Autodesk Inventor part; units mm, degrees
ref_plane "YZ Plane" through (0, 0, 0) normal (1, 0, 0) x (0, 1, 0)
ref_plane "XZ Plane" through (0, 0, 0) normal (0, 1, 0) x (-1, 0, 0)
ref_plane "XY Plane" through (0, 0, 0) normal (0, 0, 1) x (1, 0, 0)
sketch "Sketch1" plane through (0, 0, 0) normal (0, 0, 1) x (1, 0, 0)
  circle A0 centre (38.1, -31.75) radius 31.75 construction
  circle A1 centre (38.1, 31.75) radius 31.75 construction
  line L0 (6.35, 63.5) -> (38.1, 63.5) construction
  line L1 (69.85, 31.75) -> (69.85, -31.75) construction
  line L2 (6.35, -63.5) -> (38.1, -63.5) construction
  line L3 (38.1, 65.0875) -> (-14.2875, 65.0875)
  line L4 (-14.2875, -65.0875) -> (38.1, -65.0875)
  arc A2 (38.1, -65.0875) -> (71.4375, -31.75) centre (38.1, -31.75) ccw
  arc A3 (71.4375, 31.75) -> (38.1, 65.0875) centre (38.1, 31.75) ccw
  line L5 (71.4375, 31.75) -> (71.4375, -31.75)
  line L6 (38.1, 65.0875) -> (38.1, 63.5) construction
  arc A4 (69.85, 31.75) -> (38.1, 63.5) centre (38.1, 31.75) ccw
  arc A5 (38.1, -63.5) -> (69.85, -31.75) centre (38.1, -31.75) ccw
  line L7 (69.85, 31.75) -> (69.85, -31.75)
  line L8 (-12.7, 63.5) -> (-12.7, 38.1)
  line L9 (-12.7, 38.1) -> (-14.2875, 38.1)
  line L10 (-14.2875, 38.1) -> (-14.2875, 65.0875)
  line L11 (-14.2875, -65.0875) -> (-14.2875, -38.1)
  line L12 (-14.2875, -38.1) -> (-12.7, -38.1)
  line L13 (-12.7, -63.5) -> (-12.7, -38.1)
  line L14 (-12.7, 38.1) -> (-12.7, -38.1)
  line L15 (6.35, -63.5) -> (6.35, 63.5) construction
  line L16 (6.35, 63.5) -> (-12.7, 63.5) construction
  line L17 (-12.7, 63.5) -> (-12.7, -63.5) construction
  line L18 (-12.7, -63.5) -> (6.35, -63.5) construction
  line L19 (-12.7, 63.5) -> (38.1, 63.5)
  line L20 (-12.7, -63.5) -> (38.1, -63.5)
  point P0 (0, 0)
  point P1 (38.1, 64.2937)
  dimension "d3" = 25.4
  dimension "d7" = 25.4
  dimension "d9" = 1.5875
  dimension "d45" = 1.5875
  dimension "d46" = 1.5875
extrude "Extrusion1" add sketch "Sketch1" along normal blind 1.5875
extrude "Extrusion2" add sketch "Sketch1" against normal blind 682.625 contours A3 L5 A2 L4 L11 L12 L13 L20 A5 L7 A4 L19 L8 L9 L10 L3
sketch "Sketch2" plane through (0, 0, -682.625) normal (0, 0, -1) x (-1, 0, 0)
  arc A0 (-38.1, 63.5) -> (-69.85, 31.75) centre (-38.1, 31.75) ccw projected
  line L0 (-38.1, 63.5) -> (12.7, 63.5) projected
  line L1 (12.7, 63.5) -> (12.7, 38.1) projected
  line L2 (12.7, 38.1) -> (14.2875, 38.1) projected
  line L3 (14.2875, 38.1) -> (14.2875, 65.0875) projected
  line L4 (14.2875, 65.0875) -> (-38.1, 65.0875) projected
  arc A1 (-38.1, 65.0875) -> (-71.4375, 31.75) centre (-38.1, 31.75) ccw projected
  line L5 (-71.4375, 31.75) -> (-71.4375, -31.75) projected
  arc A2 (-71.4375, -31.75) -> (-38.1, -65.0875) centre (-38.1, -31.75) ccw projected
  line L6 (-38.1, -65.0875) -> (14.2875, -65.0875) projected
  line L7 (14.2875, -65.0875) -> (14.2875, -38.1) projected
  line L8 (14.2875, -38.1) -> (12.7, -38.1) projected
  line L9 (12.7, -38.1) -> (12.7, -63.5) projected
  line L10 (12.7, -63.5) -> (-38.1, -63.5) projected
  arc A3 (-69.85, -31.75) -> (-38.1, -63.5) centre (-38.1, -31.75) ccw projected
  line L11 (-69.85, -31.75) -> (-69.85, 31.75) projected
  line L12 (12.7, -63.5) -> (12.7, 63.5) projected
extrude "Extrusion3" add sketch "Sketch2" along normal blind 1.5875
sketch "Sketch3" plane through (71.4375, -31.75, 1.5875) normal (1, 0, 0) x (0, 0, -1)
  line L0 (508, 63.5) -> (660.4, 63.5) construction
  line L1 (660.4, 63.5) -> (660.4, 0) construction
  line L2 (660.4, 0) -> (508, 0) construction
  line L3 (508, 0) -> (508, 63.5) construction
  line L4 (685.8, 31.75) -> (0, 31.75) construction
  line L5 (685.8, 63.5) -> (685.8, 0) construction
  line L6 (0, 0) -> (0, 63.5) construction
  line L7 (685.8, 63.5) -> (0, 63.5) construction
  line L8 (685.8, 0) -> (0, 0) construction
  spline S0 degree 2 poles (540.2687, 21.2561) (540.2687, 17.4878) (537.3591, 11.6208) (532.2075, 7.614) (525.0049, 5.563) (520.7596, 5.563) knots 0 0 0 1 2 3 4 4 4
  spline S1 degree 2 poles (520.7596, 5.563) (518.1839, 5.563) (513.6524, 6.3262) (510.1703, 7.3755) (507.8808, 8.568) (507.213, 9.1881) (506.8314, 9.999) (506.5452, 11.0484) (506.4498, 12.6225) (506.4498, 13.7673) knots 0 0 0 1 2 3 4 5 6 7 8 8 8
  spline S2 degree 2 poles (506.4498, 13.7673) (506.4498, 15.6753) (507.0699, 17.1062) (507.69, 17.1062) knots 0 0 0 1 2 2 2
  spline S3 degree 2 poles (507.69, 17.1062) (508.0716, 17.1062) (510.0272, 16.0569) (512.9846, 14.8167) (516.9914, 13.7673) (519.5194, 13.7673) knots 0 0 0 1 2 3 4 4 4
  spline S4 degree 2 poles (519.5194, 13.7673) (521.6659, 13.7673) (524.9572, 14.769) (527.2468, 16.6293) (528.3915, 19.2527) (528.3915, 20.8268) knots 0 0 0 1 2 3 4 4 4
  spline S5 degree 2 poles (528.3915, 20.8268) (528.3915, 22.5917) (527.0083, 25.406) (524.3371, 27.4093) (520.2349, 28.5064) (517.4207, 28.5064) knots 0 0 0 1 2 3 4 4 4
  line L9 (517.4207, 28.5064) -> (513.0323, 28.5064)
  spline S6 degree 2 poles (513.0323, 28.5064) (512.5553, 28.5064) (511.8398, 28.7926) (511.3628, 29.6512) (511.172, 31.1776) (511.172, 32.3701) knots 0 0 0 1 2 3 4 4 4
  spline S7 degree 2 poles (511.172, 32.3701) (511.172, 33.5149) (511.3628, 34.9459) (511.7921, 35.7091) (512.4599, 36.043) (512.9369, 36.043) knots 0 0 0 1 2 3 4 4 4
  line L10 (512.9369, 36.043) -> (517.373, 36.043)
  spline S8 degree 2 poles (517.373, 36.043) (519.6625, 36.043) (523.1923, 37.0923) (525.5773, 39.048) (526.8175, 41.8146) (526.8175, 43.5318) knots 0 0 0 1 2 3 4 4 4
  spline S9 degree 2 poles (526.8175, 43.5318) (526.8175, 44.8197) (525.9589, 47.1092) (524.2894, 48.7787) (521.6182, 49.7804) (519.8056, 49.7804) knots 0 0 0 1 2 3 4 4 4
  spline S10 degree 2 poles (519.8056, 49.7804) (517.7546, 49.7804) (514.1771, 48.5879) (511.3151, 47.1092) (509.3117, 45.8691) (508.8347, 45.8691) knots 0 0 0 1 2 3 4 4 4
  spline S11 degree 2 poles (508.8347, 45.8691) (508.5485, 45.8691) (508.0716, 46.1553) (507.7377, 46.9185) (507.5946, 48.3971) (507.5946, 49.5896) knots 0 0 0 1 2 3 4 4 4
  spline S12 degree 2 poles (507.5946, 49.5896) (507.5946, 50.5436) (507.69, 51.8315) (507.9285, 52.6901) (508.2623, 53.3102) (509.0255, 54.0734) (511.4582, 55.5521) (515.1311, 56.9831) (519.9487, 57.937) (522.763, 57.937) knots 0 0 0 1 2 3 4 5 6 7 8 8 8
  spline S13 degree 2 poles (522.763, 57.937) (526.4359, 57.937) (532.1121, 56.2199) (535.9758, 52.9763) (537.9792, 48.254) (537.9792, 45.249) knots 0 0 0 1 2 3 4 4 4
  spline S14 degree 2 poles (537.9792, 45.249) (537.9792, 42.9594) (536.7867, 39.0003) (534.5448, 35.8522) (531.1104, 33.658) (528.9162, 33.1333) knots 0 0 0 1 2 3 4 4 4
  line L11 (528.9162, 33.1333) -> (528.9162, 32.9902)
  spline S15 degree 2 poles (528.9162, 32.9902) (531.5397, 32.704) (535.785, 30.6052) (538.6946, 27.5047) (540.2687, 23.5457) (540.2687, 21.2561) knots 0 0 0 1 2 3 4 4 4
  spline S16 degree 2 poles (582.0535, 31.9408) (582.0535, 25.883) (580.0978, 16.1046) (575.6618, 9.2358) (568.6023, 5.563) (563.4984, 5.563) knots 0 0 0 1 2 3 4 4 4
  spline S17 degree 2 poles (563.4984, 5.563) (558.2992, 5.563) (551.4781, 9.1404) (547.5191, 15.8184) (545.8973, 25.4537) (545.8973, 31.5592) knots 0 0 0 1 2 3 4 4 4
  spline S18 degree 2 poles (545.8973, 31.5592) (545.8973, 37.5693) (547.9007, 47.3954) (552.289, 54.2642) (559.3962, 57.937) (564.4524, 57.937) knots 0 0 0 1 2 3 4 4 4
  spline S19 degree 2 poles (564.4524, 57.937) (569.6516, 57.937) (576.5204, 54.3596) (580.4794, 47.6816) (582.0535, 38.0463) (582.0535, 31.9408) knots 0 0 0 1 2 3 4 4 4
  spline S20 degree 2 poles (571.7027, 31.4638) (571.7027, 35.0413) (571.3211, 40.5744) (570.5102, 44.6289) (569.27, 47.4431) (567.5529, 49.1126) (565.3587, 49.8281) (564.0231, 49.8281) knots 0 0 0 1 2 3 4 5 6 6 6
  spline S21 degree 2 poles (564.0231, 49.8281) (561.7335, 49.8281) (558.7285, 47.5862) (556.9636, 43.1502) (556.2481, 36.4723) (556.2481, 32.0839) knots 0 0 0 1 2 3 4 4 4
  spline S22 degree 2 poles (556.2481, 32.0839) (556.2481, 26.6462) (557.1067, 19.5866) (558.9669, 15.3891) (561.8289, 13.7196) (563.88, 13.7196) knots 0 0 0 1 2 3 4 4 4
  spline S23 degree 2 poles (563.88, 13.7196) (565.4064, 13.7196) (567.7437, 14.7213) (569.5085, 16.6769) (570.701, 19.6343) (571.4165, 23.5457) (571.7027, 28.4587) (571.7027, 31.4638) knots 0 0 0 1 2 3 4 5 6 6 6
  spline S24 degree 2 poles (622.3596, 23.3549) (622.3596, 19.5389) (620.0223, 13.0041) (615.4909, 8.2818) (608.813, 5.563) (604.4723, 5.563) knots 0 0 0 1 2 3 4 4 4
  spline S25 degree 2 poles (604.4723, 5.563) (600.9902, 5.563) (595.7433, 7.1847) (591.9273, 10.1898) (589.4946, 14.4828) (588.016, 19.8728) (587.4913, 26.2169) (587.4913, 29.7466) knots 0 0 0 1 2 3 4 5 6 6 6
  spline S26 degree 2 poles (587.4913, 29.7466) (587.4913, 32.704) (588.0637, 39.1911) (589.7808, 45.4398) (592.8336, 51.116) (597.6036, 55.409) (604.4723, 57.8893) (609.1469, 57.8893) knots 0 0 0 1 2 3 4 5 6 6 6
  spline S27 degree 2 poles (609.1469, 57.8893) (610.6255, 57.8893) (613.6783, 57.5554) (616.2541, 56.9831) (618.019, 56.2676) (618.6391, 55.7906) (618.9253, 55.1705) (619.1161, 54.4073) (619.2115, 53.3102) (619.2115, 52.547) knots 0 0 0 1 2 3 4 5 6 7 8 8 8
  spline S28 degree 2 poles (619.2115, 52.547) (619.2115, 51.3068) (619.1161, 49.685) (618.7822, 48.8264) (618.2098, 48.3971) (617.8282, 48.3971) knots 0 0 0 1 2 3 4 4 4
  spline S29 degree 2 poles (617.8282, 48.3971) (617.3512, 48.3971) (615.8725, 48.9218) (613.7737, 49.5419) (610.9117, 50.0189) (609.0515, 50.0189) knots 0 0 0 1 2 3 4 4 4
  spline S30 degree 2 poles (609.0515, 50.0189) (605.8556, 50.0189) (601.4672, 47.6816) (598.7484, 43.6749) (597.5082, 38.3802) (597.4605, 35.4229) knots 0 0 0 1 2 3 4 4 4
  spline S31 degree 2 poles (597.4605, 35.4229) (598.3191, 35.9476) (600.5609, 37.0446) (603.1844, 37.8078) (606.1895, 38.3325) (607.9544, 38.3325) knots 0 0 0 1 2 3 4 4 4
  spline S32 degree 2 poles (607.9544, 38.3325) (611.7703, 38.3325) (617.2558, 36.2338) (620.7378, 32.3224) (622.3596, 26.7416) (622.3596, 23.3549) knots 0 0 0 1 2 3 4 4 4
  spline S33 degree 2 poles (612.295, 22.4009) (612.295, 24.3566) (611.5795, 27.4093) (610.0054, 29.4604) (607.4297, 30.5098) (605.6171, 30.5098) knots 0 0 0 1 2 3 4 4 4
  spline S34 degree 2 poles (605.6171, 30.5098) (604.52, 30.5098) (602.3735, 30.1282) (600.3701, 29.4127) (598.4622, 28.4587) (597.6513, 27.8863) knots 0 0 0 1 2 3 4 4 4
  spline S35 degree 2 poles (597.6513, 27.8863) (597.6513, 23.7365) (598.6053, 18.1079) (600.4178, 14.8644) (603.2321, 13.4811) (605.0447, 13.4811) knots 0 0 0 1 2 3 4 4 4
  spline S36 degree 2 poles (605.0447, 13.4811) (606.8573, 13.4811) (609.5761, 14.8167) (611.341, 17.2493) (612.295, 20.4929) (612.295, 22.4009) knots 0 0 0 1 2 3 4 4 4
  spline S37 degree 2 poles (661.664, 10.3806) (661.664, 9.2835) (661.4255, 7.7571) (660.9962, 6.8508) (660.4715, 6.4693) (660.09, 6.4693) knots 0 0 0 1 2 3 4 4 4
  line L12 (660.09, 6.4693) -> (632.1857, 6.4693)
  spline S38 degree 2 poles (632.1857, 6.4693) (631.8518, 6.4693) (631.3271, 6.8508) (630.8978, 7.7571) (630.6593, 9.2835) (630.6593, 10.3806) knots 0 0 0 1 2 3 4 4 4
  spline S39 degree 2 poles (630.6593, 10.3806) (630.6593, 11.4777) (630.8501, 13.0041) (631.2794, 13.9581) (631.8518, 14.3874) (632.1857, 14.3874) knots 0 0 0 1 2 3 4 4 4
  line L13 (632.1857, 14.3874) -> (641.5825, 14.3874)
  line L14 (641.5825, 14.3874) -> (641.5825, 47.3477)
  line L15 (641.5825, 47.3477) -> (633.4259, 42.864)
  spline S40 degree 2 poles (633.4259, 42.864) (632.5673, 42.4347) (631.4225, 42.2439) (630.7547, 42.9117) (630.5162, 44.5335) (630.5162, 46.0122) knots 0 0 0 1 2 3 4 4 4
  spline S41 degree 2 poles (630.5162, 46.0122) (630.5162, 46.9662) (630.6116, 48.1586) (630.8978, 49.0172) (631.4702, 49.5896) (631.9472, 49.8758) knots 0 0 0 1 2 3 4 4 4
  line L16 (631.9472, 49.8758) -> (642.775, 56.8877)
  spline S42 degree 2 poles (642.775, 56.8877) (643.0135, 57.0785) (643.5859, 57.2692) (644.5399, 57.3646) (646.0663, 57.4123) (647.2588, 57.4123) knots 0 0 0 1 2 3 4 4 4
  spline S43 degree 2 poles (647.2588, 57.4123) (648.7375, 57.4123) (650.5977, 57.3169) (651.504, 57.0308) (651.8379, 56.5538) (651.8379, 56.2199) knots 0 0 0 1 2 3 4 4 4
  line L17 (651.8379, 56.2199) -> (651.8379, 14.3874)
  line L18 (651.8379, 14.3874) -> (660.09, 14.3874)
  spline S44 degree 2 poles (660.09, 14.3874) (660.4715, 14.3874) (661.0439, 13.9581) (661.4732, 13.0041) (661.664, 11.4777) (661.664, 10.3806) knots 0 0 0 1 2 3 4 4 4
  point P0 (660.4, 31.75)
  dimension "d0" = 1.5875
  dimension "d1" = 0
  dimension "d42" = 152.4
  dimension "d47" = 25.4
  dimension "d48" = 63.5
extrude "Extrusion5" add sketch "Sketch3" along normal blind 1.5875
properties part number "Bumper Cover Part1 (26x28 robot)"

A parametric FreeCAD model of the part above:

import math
import FreeCAD as App
import Part
import Sketcher
from FreeCAD import Vector
Q = App.Units.Quantity

doc = App.newDocument("Part")
body = doc.addObject("PartDesign::Body", "Body")

# Sketch on XY plane
sketch1 = body.newObject("Sketcher::SketchObject", "Sketch")
sketch1.AttachmentSupport = (doc.getObject("XY_Plane"), [""])
sketch1.MapMode = "FlatFace"
sketch1.addGeometry(Part.ArcOfCircle(Part.Circle(Vector(38.1, 31.75, 0), Vector(0, 0, 1), 33.3375), math.radians(0), math.radians(90)), False)
sketch1.addGeometry(Part.LineSegment(Vector(38.1, 65.0875, 0), Vector(-14.2875, 65.0875, 0)), False)
sketch1.addGeometry(Part.LineSegment(Vector(-14.2875, 65.0875, 0), Vector(-14.2875, 38.1, 0)), False)
sketch1.addGeometry(Part.LineSegment(Vector(-14.2875, 38.1, 0), Vector(-12.7, 38.1, 0)), False)
sketch1.addGeometry(Part.LineSegment(Vector(-12.7, 38.1, 0), Vector(-12.7, -38.1, 0)), False)
sketch1.addGeometry(Part.LineSegment(Vector(-12.7, -38.1, 0), Vector(-14.2875, -38.1, 0)), False)
sketch1.addGeometry(Part.LineSegment(Vector(-14.2875, -38.1, 0), Vector(-14.2875, -65.0875, 0)), False)
sketch1.addGeometry(Part.LineSegment(Vector(-14.2875, -65.0875, 0), Vector(38.1, -65.0875, 0)), False)
sketch1.addGeometry(Part.ArcOfCircle(Part.Circle(Vector(38.1, -31.75, 0), Vector(0, 0, 1), 33.3375), math.radians(-90), math.radians(0)), False)
sketch1.addGeometry(Part.LineSegment(Vector(71.4375, -31.75, 0), Vector(71.4375, 31.75, 0)), False)
sketch1.addConstraint(Sketcher.Constraint("Tangent", 0, 2, 1, 1))
sketch1.addConstraint(Sketcher.Constraint("Coincident", 1, 2, 2, 1))
sketch1.addConstraint(Sketcher.Constraint("Coincident", 2, 2, 3, 1))
sketch1.addConstraint(Sketcher.Constraint("Coincident", 3, 2, 4, 1))
sketch1.addConstraint(Sketcher.Constraint("Coincident", 4, 2, 5, 1))
sketch1.addConstraint(Sketcher.Constraint("Coincident", 5, 2, 6, 1))
sketch1.addConstraint(Sketcher.Constraint("Coincident", 6, 2, 7, 1))
sketch1.addConstraint(Sketcher.Constraint("Tangent", 7, 2, 8, 1))
sketch1.addConstraint(Sketcher.Constraint("Tangent", 8, 2, 9, 1))
sketch1.addConstraint(Sketcher.Constraint("Tangent", 9, 2, 0, 1))
sketch1.addConstraint(Sketcher.Constraint("Horizontal", 1))
sketch1.addConstraint(Sketcher.Constraint("Vertical", 2))
sketch1.addConstraint(Sketcher.Constraint("Horizontal", 3))
sketch1.addConstraint(Sketcher.Constraint("Vertical", 4))
sketch1.addConstraint(Sketcher.Constraint("Horizontal", 5))
sketch1.addConstraint(Sketcher.Constraint("Vertical", 6))
sketch1.addConstraint(Sketcher.Constraint("Horizontal", 7))
sketch1.addConstraint(Sketcher.Constraint("Vertical", 9))
sketch1.addConstraint(Sketcher.Constraint("Equal", 0, 8))
sketch1.addConstraint(Sketcher.Constraint("Symmetric", 2, 2, 5, 2, -1))
sketch1.addConstraint(Sketcher.Constraint("Equal", 2, 6))
sketch1.addConstraint(Sketcher.Constraint("DistanceX", 3, 1, 3, 2, Q("0.0625 in")))
sketch1.addConstraint(Sketcher.Constraint("DistanceY", 4, 2, 4, 1, Q("3 in")))
sketch1.addConstraint(Sketcher.Constraint("DistanceY", 9, 1, 9, 2, Q("2.5 in")))
sketch1.addConstraint(Sketcher.Constraint("Radius", 0, Q("1.3125 in")))
sketch1.addConstraint(Sketcher.Constraint("DistanceX", 3, 2, 0, 3, Q("2 in")))
sketch1.addConstraint(Sketcher.Constraint("DistanceX", -1, 1, 0, 3, Q("1.5 in")))
pad1 = body.newObject("PartDesign::Pad", "Pad")
pad1.Profile = sketch1
pad1.Length = Q("0.0625 in")

# Sketch on XY plane
sketch2 = body.newObject("Sketcher::SketchObject", "Sketch001")
sketch2.AttachmentSupport = (doc.getObject("XY_Plane"), [""])
sketch2.MapMode = "FlatFace"
sketch2.addGeometry(Part.ArcOfCircle(Part.Circle(Vector(38.1, 31.75, 0), Vector(0, 0, 1), 33.3375), math.radians(0), math.radians(90)), False)
sketch2.addGeometry(Part.LineSegment(Vector(38.1, 65.0875, 0), Vector(-14.2875, 65.0875, 0)), False)
sketch2.addGeometry(Part.LineSegment(Vector(-14.2875, 65.0875, 0), Vector(-14.2875, 38.1, 0)), False)
sketch2.addGeometry(Part.LineSegment(Vector(-14.2875, 38.1, 0), Vector(-12.7, 38.1, 0)), False)
sketch2.addGeometry(Part.LineSegment(Vector(-12.7, 38.1, 0), Vector(-12.7, 63.5, 0)), False)
sketch2.addGeometry(Part.LineSegment(Vector(-12.7, 63.5, 0), Vector(38.1, 63.5, 0)), False)
sketch2.addGeometry(Part.ArcOfCircle(Part.Circle(Vector(38.1, 31.75, 0), Vector(0, 0, 1), 31.75), math.radians(0), math.radians(90)), False)
sketch2.addGeometry(Part.LineSegment(Vector(69.85, 31.75, 0), Vector(69.85, -31.75, 0)), False)
sketch2.addGeometry(Part.ArcOfCircle(Part.Circle(Vector(38.1, -31.75, 0), Vector(0, 0, 1), 31.75), math.radians(-90), math.radians(0)), False)
sketch2.addGeometry(Part.LineSegment(Vector(38.1, -63.5, 0), Vector(-12.7, -63.5, 0)), False)
sketch2.addGeometry(Part.LineSegment(Vector(-12.7, -63.5, 0), Vector(-12.7, -38.1, 0)), False)
sketch2.addGeometry(Part.LineSegment(Vector(-12.7, -38.1, 0), Vector(-14.2875, -38.1, 0)), False)
sketch2.addGeometry(Part.LineSegment(Vector(-14.2875, -38.1, 0), Vector(-14.2875, -65.0875, 0)), False)
sketch2.addGeometry(Part.LineSegment(Vector(-14.2875, -65.0875, 0), Vector(38.1, -65.0875, 0)), False)
sketch2.addGeometry(Part.ArcOfCircle(Part.Circle(Vector(38.1, -31.75, 0), Vector(0, 0, 1), 33.3375), math.radians(-90), math.radians(0)), False)
sketch2.addGeometry(Part.LineSegment(Vector(71.4375, -31.75, 0), Vector(71.4375, 31.75, 0)), False)
sketch2.addConstraint(Sketcher.Constraint("Tangent", 0, 2, 1, 1))
sketch2.addConstraint(Sketcher.Constraint("Coincident", 1, 2, 2, 1))
sketch2.addConstraint(Sketcher.Constraint("Coincident", 2, 2, 3, 1))
sketch2.addConstraint(Sketcher.Constraint("Coincident", 3, 2, 4, 1))
sketch2.addConstraint(Sketcher.Constraint("Coincident", 4, 2, 5, 1))
sketch2.addConstraint(Sketcher.Constraint("Tangent", 5, 2, 6, 2))
sketch2.addConstraint(Sketcher.Constraint("Tangent", 6, 1, 7, 1))
sketch2.addConstraint(Sketcher.Constraint("Tangent", 7, 2, 8, 2))
sketch2.addConstraint(Sketcher.Constraint("Tangent", 8, 1, 9, 1))
sketch2.addConstraint(Sketcher.Constraint("Coincident", 9, 2, 10, 1))
sketch2.addConstraint(Sketcher.Constraint("Coincident", 10, 2, 11, 1))
sketch2.addConstraint(Sketcher.Constraint("Coincident", 11, 2, 12, 1))
sketch2.addConstraint(Sketcher.Constraint("Coincident", 12, 2, 13, 1))
sketch2.addConstraint(Sketcher.Constraint("Tangent", 13, 2, 14, 1))
sketch2.addConstraint(Sketcher.Constraint("Tangent", 14, 2, 15, 1))
sketch2.addConstraint(Sketcher.Constraint("Tangent", 15, 2, 0, 1))
sketch2.addConstraint(Sketcher.Constraint("Horizontal", 1))
sketch2.addConstraint(Sketcher.Constraint("Vertical", 2))
sketch2.addConstraint(Sketcher.Constraint("Horizontal", 3))
sketch2.addConstraint(Sketcher.Constraint("Vertical", 4))
sketch2.addConstraint(Sketcher.Constraint("Horizontal", 5))
sketch2.addConstraint(Sketcher.Constraint("Vertical", 7))
sketch2.addConstraint(Sketcher.Constraint("Horizontal", 9))
sketch2.addConstraint(Sketcher.Constraint("Vertical", 10))
sketch2.addConstraint(Sketcher.Constraint("Horizontal", 11))
sketch2.addConstraint(Sketcher.Constraint("Vertical", 12))
sketch2.addConstraint(Sketcher.Constraint("Horizontal", 13))
sketch2.addConstraint(Sketcher.Constraint("Vertical", 15))
sketch2.addConstraint(Sketcher.Constraint("Coincident", 6, 3, 0, 3))
sketch2.addConstraint(Sketcher.Constraint("Coincident", 14, 3, 8, 3))
sketch2.addConstraint(Sketcher.Constraint("Equal", 6, 8))
sketch2.addConstraint(Sketcher.Constraint("Symmetric", 4, 2, 9, 2, -1))
sketch2.addConstraint(Sketcher.Constraint("Symmetric", 2, 2, 11, 2, -1))
sketch2.addConstraint(Sketcher.Constraint("DistanceY", 4, 1, 4, 2, Q("1 in")))
sketch2.addConstraint(Sketcher.Constraint("DistanceX", 3, 1, 3, 2, Q("0.0625 in")))
sketch2.addConstraint(Sketcher.Constraint("DistanceX", 5, 1, 5, 2, Q("2 in")))
sketch2.addConstraint(Sketcher.Constraint("Radius", 6, Q("1.25 in")))
sketch2.addConstraint(Sketcher.Constraint("DistanceY", 7, 2, 7, 1, Q("2.5 in")))
sketch2.addConstraint(Sketcher.Constraint("Radius", 0, Q("1.3125 in")))
sketch2.addConstraint(Sketcher.Constraint("DistanceX", -1, 1, 0, 3, Q("1.5 in")))
pad2 = body.newObject("PartDesign::Pad", "Pad001")
pad2.Profile = sketch2
pad2.Length = Q("26.875 in")
pad2.Reversed = True

# Sketch on XY plane
sketch3 = body.newObject("Sketcher::SketchObject", "Sketch002")
sketch3.AttachmentSupport = (doc.getObject("XY_Plane"), [""])
sketch3.MapMode = "FlatFace"
sketch3.AttachmentOffset = App.Placement(Vector(0, 0, -26.875 * 25.4), App.Rotation())
sketch3.addGeometry(Part.LineSegment(Vector(-12.7, -38.1, 0), Vector(-12.7, 38.1, 0)), False)
sketch3.addGeometry(Part.LineSegment(Vector(-12.7, 38.1, 0), Vector(-14.2875, 38.1, 0)), False)
sketch3.addGeometry(Part.LineSegment(Vector(-14.2875, 38.1, 0), Vector(-14.2875, 65.0875, 0)), False)
sketch3.addGeometry(Part.LineSegment(Vector(-14.2875, 65.0875, 0), Vector(38.1, 65.0875, 0)), False)
sketch3.addGeometry(Part.ArcOfCircle(Part.Circle(Vector(38.1, 31.75, 0), Vector(0, 0, 1), 33.3375), math.radians(0), math.radians(90)), False)
sketch3.addGeometry(Part.LineSegment(Vector(71.4375, 31.75, 0), Vector(71.4375, -31.75, 0)), False)
sketch3.addGeometry(Part.ArcOfCircle(Part.Circle(Vector(38.1, -31.75, 0), Vector(0, 0, 1), 33.3375), math.radians(-90), math.radians(0)), False)
sketch3.addGeometry(Part.LineSegment(Vector(38.1, -65.0875, 0), Vector(-14.2875, -65.0875, 0)), False)
sketch3.addGeometry(Part.LineSegment(Vector(-14.2875, -65.0875, 0), Vector(-14.2875, -38.1, 0)), False)
sketch3.addGeometry(Part.LineSegment(Vector(-14.2875, -38.1, 0), Vector(-12.7, -38.1, 0)), False)
sketch3.addConstraint(Sketcher.Constraint("Coincident", 0, 2, 1, 1))
sketch3.addConstraint(Sketcher.Constraint("Coincident", 1, 2, 2, 1))
sketch3.addConstraint(Sketcher.Constraint("Coincident", 2, 2, 3, 1))
sketch3.addConstraint(Sketcher.Constraint("Tangent", 3, 2, 4, 2))
sketch3.addConstraint(Sketcher.Constraint("Tangent", 4, 1, 5, 1))
sketch3.addConstraint(Sketcher.Constraint("Tangent", 5, 2, 6, 2))
sketch3.addConstraint(Sketcher.Constraint("Tangent", 6, 1, 7, 1))
sketch3.addConstraint(Sketcher.Constraint("Coincident", 7, 2, 8, 1))
sketch3.addConstraint(Sketcher.Constraint("Coincident", 8, 2, 9, 1))
sketch3.addConstraint(Sketcher.Constraint("Coincident", 9, 2, 0, 1))
sketch3.addConstraint(Sketcher.Constraint("Vertical", 0))
sketch3.addConstraint(Sketcher.Constraint("Horizontal", 1))
sketch3.addConstraint(Sketcher.Constraint("Vertical", 2))
sketch3.addConstraint(Sketcher.Constraint("Horizontal", 3))
sketch3.addConstraint(Sketcher.Constraint("Vertical", 5))
sketch3.addConstraint(Sketcher.Constraint("Horizontal", 7))
sketch3.addConstraint(Sketcher.Constraint("Vertical", 8))
sketch3.addConstraint(Sketcher.Constraint("Horizontal", 9))
sketch3.addConstraint(Sketcher.Constraint("Equal", 4, 6))
sketch3.addConstraint(Sketcher.Constraint("Symmetric", 2, 2, 7, 2, -1))
sketch3.addConstraint(Sketcher.Constraint("Equal", 2, 8))
sketch3.addConstraint(Sketcher.Constraint("DistanceY", 0, 1, 0, 2, Q("3 in")))
sketch3.addConstraint(Sketcher.Constraint("DistanceY", 5, 2, 5, 1, Q("2.5 in")))
sketch3.addConstraint(Sketcher.Constraint("Radius", 4, Q("1.3125 in")))
sketch3.addConstraint(Sketcher.Constraint("DistanceX", 0, 2, 4, 3, Q("2 in")))
sketch3.addConstraint(Sketcher.Constraint("DistanceX", -1, 1, 4, 3, Q("1.5 in")))
sketch3.addConstraint(Sketcher.Constraint("DistanceX", 1, 2, 1, 1, Q("0.0625 in")))
pad3 = body.newObject("PartDesign::Pad", "Pad002")
pad3.Profile = sketch3
pad3.Length = Q("0.0625 in")
pad3.Reversed = True

# Sketch on YZ plane
sketch4 = body.newObject("Sketcher::SketchObject", "Sketch003")
sketch4.AttachmentSupport = (doc.getObject("YZ_Plane"), [""])
sketch4.MapMode = "FlatFace"
sketch4.AttachmentOffset = App.Placement(Vector(0, 0, 2.8125 * 25.4), App.Rotation())
sketch4.addGeometry(Part.BSplineCurve([Vector(-10.4939, -538.6812, 0), Vector(-14.2622, -538.6812, 0), Vector(-20.1292, -535.7716, 0), Vector(-24.136, -530.62, 0), Vector(-26.187, -523.4174, 0), Vector(-26.187, -519.1721, 0)], [3, 1, 1, 1, 3], [0, 1, 2, 3, 4], False, 2, [1, 1, 1, 1, 1, 1], False), False)
sketch4.addGeometry(Part.BSplineCurve([Vector(1.2402, -527.3287, 0), Vector(0.954, -529.9522, 0), Vector(-1.1448, -534.1975, 0), Vector(-4.2453, -537.1071, 0), Vector(-8.2043, -538.6812, 0), Vector(-10.4939, -538.6812, 0)], [3, 1, 1, 1, 3], [0, 1, 2, 3, 4], False, 2, [1, 1, 1, 1, 1, 1], False), False)
sketch4.addGeometry(Part.LineSegment(Vector(1.2402, -527.3287, 0), Vector(1.3833, -527.3287, 0)), False)
sketch4.addGeometry(Part.BSplineCurve([Vector(13.499, -536.3917, 0), Vector(11.2094, -536.3917, 0), Vector(7.2503, -535.1992, 0), Vector(4.1022, -532.9573, 0), Vector(1.908, -529.5229, 0), Vector(1.3833, -527.3287, 0)], [3, 1, 1, 1, 3], [0, 1, 2, 3, 4], False, 2, [1, 1, 1, 1, 1, 1], False), False)
sketch4.addGeometry(Part.BSplineCurve([Vector(26.187, -521.1755, 0), Vector(26.187, -524.8484, 0), Vector(24.4699, -530.5246, 0), Vector(21.2263, -534.3883, 0), Vector(16.504, -536.3917, 0), Vector(13.499, -536.3917, 0)], [3, 1, 1, 1, 3], [0, 1, 2, 3, 4], False, 2, [1, 1, 1, 1, 1, 1], False), False)
sketch4.addGeometry(Part.BSplineCurve([Vector(17.8396, -506.0071, 0), Vector(18.7936, -506.0071, 0), Vector(20.0815, -506.1025, 0), Vector(20.9401, -506.341, 0), Vector(21.5602, -506.6748, 0), Vector(22.3234, -507.438, 0), Vector(23.8021, -509.8707, 0), Vector(25.2331, -513.5436, 0), Vector(26.187, -518.3612, 0), Vector(26.187, -521.1755, 0)], [3, 1, 1, 1, 1, 1, 1, 1, 3], [0, 1, 2, 3, 4, 5, 6, 7, 8], False, 2, [1, 1, 1, 1, 1, 1, 1, 1, 1, 1], False), False)
sketch4.addGeometry(Part.BSplineCurve([Vector(14.1191, -507.2472, 0), Vector(14.1191, -506.961, 0), Vector(14.4053, -506.4841, 0), Vector(15.1685, -506.1502, 0), Vector(16.6471, -506.0071, 0), Vector(17.8396, -506.0071, 0)], [3, 1, 1, 1, 3], [0, 1, 2, 3, 4], False, 2, [1, 1, 1, 1, 1, 1], False), False)
sketch4.addGeometry(Part.BSplineCurve([Vector(18.0304, -518.2181, 0), Vector(18.0304, -516.1671, 0), Vector(16.8379, -512.5896, 0), Vector(15.3592, -509.7276, 0), Vector(14.1191, -507.7242, 0), Vector(14.1191, -507.2472, 0)], [3, 1, 1, 1, 3], [0, 1, 2, 3, 4], False, 2, [1, 1, 1, 1, 1, 1], False), False)
sketch4.addGeometry(Part.BSplineCurve([Vector(11.7818, -525.23, 0), Vector(13.0697, -525.23, 0), Vector(15.3592, -524.3714, 0), Vector(17.0287, -522.7019, 0), Vector(18.0304, -520.0307, 0), Vector(18.0304, -518.2181, 0)], [3, 1, 1, 1, 3], [0, 1, 2, 3, 4], False, 2, [1, 1, 1, 1, 1, 1], False), False)
sketch4.addGeometry(Part.BSplineCurve([Vector(4.293, -515.7855, 0), Vector(4.293, -518.075, 0), Vector(5.3423, -521.6048, 0), Vector(7.298, -523.9898, 0), Vector(10.0646, -525.23, 0), Vector(11.7818, -525.23, 0)], [3, 1, 1, 1, 3], [0, 1, 2, 3, 4], False, 2, [1, 1, 1, 1, 1, 1], False), False)
sketch4.addGeometry(Part.LineSegment(Vector(4.293, -515.7855, 0), Vector(4.293, -511.3494, 0)), False)
sketch4.addGeometry(Part.BSplineCurve([Vector(0.6201, -509.5845, 0), Vector(1.7649, -509.5845, 0), Vector(3.1959, -509.7753, 0), Vector(3.9591, -510.2046, 0), Vector(4.293, -510.8724, 0), Vector(4.293, -511.3494, 0)], [3, 1, 1, 1, 3], [0, 1, 2, 3, 4], False, 2, [1, 1, 1, 1, 1, 1], False), False)
sketch4.addGeometry(Part.BSplineCurve([Vector(-3.2436, -511.4448, 0), Vector(-3.2436, -510.9678, 0), Vector(-2.9574, -510.2523, 0), Vector(-2.0988, -509.7753, 0), Vector(-0.5724, -509.5845, 0), Vector(0.6201, -509.5845, 0)], [3, 1, 1, 1, 3], [0, 1, 2, 3, 4], False, 2, [1, 1, 1, 1, 1, 1], False), False)
sketch4.addGeometry(Part.LineSegment(Vector(-3.2436, -511.4448, 0), Vector(-3.2436, -515.8332, 0)), False)
sketch4.addGeometry(Part.BSplineCurve([Vector(-10.9232, -526.804, 0), Vector(-9.1583, -526.804, 0), Vector(-6.344, -525.4208, 0), Vector(-4.3407, -522.7496, 0), Vector(-3.2436, -518.6474, 0), Vector(-3.2436, -515.8332, 0)], [3, 1, 1, 1, 3], [0, 1, 2, 3, 4], False, 2, [1, 1, 1, 1, 1, 1], False), False)
sketch4.addGeometry(Part.BSplineCurve([Vector(-17.9827, -517.9319, 0), Vector(-17.9827, -520.0784, 0), Vector(-16.981, -523.3697, 0), Vector(-15.1207, -525.6593, 0), Vector(-12.4973, -526.804, 0), Vector(-10.9232, -526.804, 0)], [3, 1, 1, 1, 3], [0, 1, 2, 3, 4], False, 2, [1, 1, 1, 1, 1, 1], False), False)
sketch4.addGeometry(Part.BSplineCurve([Vector(-14.6438, -506.1025, 0), Vector(-14.6438, -506.4841, 0), Vector(-15.6931, -508.4397, 0), Vector(-16.9333, -511.3971, 0), Vector(-17.9827, -515.4039, 0), Vector(-17.9827, -517.9319, 0)], [3, 1, 1, 1, 3], [0, 1, 2, 3, 4], False, 2, [1, 1, 1, 1, 1, 1], False), False)
sketch4.addGeometry(Part.BSplineCurve([Vector(-17.9827, -504.8623, 0), Vector(-16.0747, -504.8623, 0), Vector(-14.6438, -505.4824, 0), Vector(-14.6438, -506.1025, 0)], [3, 1, 3], [0, 1, 2], False, 2, [1, 1, 1, 1], False), False)
sketch4.addGeometry(Part.BSplineCurve([Vector(-26.187, -519.1721, 0), Vector(-26.187, -516.5964, 0), Vector(-25.4238, -512.0649, 0), Vector(-24.3745, -508.5828, 0), Vector(-23.182, -506.2933, 0), Vector(-22.5619, -505.6255, 0), Vector(-21.751, -505.2439, 0), Vector(-20.7016, -504.9577, 0), Vector(-19.1275, -504.8623, 0), Vector(-17.9827, -504.8623, 0)], [3, 1, 1, 1, 1, 1, 1, 1, 3], [0, 1, 2, 3, 4, 5, 6, 7, 8], False, 2, [1, 1, 1, 1, 1, 1, 1, 1, 1, 1], False), False)
sketch4.addGeometry(Part.BSplineCurve([Vector(0.1908, -580.466, 0), Vector(-5.867, -580.466, 0), Vector(-15.6454, -578.5103, 0), Vector(-22.5142, -574.0743, 0), Vector(-26.187, -567.0148, 0), Vector(-26.187, -561.9109, 0)], [3, 1, 1, 1, 3], [0, 1, 2, 3, 4], False, 2, [1, 1, 1, 1, 1, 1], False), False)
sketch4.addGeometry(Part.BSplineCurve([Vector(26.187, -562.8649, 0), Vector(26.187, -568.0641, 0), Vector(22.6096, -574.9329, 0), Vector(15.9316, -578.8919, 0), Vector(6.2963, -580.466, 0), Vector(0.1908, -580.466, 0)], [3, 1, 1, 1, 3], [0, 1, 2, 3, 4], False, 2, [1, 1, 1, 1, 1, 1], False), False)
sketch4.addGeometry(Part.BSplineCurve([Vector(-0.1908, -544.3098, 0), Vector(5.8193, -544.3098, 0), Vector(15.6454, -546.3132, 0), Vector(22.5142, -550.7015, 0), Vector(26.187, -557.8087, 0), Vector(26.187, -562.8649, 0)], [3, 1, 1, 1, 3], [0, 1, 2, 3, 4], False, 2, [1, 1, 1, 1, 1, 1], False), False)
sketch4.addGeometry(Part.BSplineCurve([Vector(-26.187, -561.9109, 0), Vector(-26.187, -556.7117, 0), Vector(-22.6096, -549.8906, 0), Vector(-15.9316, -545.9316, 0), Vector(-6.2963, -544.3098, 0), Vector(-0.1908, -544.3098, 0)], [3, 1, 1, 1, 3], [0, 1, 2, 3, 4], False, 2, [1, 1, 1, 1, 1, 1], False), False)
sketch4.addGeometry(Part.BSplineCurve([Vector(-0.2862, -570.1152, 0), Vector(3.2913, -570.1152, 0), Vector(8.8244, -569.7336, 0), Vector(12.8789, -568.9227, 0), Vector(15.6931, -567.6825, 0), Vector(17.3626, -565.9654, 0), Vector(18.0781, -563.7712, 0), Vector(18.0781, -562.4356, 0)], [3, 1, 1, 1, 1, 1, 3], [0, 1, 2, 3, 4, 5, 6], False, 2, [1, 1, 1, 1, 1, 1, 1, 1], False), False)
sketch4.addGeometry(Part.BSplineCurve([Vector(-18.0304, -562.2925, 0), Vector(-18.0304, -563.8189, 0), Vector(-17.0287, -566.1562, 0), Vector(-15.0731, -567.921, 0), Vector(-12.1157, -569.1135, 0), Vector(-8.2043, -569.829, 0), Vector(-3.2913, -570.1152, 0), Vector(-0.2862, -570.1152, 0)], [3, 1, 1, 1, 1, 1, 3], [0, 1, 2, 3, 4, 5, 6], False, 2, [1, 1, 1, 1, 1, 1, 1, 1], False), False)
sketch4.addGeometry(Part.BSplineCurve([Vector(0.3339, -554.6606, 0), Vector(-5.1038, -554.6606, 0), Vector(-12.1634, -555.5192, 0), Vector(-16.3609, -557.3794, 0), Vector(-18.0304, -560.2414, 0), Vector(-18.0304, -562.2925, 0)], [3, 1, 1, 1, 3], [0, 1, 2, 3, 4], False, 2, [1, 1, 1, 1, 1, 1], False), False)
sketch4.addGeometry(Part.BSplineCurve([Vector(18.0781, -562.4356, 0), Vector(18.0781, -560.146, 0), Vector(15.8362, -557.141, 0), Vector(11.4002, -555.3761, 0), Vector(4.7223, -554.6606, 0), Vector(0.3339, -554.6606, 0)], [3, 1, 1, 1, 3], [0, 1, 2, 3, 4], False, 2, [1, 1, 1, 1, 1, 1], False), False)
sketch4.addGeometry(Part.BSplineCurve([Vector(-8.3951, -620.7721, 0), Vector(-12.2111, -620.7721, 0), Vector(-18.7459, -618.4348, 0), Vector(-23.4682, -613.9034, 0), Vector(-26.187, -607.2255, 0), Vector(-26.187, -602.8848, 0)], [3, 1, 1, 1, 3], [0, 1, 2, 3, 4], False, 2, [1, 1, 1, 1, 1, 1], False), False)
sketch4.addGeometry(Part.BSplineCurve([Vector(6.5825, -606.3669, 0), Vector(6.5825, -610.1828, 0), Vector(4.4838, -615.6683, 0), Vector(0.5724, -619.1503, 0), Vector(-5.0084, -620.7721, 0), Vector(-8.3951, -620.7721, 0)], [3, 1, 1, 1, 3], [0, 1, 2, 3, 4], False, 2, [1, 1, 1, 1, 1, 1], False), False)
sketch4.addGeometry(Part.BSplineCurve([Vector(3.6729, -595.873, 0), Vector(4.1976, -596.7316, 0), Vector(5.2946, -598.9734, 0), Vector(6.0578, -601.5969, 0), Vector(6.5825, -604.602, 0), Vector(6.5825, -606.3669, 0)], [3, 1, 1, 1, 3], [0, 1, 2, 3, 4], False, 2, [1, 1, 1, 1, 1, 1], False), False)
sketch4.addGeometry(Part.BSplineCurve([Vector(18.2689, -607.464, 0), Vector(18.2689, -604.2681, 0), Vector(15.9316, -599.8797, 0), Vector(11.9249, -597.1609, 0), Vector(6.6302, -595.9207, 0), Vector(3.6729, -595.873, 0)], [3, 1, 1, 1, 3], [0, 1, 2, 3, 4], False, 2, [1, 1, 1, 1, 1, 1], False), False)
sketch4.addGeometry(Part.BSplineCurve([Vector(16.6471, -616.2407, 0), Vector(16.6471, -615.7637, 0), Vector(17.1718, -614.285, 0), Vector(17.7919, -612.1862, 0), Vector(18.2689, -609.3242, 0), Vector(18.2689, -607.464, 0)], [3, 1, 1, 1, 3], [0, 1, 2, 3, 4], False, 2, [1, 1, 1, 1, 1, 1], False), False)
sketch4.addGeometry(Part.BSplineCurve([Vector(20.797, -617.624, 0), Vector(19.5568, -617.624, 0), Vector(17.935, -617.5286, 0), Vector(17.0764, -617.1947, 0), Vector(16.6471, -616.6223, 0), Vector(16.6471, -616.2407, 0)], [3, 1, 1, 1, 3], [0, 1, 2, 3, 4], False, 2, [1, 1, 1, 1, 1, 1], False), False)
sketch4.addGeometry(Part.BSplineCurve([Vector(26.1393, -607.5594, 0), Vector(26.1393, -609.038, 0), Vector(25.8054, -612.0908, 0), Vector(25.2331, -614.6666, 0), Vector(24.5176, -616.4315, 0), Vector(24.0406, -617.0516, 0), Vector(23.4205, -617.3378, 0), Vector(22.6573, -617.5286, 0), Vector(21.5602, -617.624, 0), Vector(20.797, -617.624, 0)], [3, 1, 1, 1, 1, 1, 1, 1, 3], [0, 1, 2, 3, 4, 5, 6, 7, 8], False, 2, [1, 1, 1, 1, 1, 1, 1, 1, 1, 1], False), False)
sketch4.addGeometry(Part.BSplineCurve([Vector(-2.0034, -585.9038, 0), Vector(0.954, -585.9038, 0), Vector(7.4411, -586.4762, 0), Vector(13.6898, -588.1933, 0), Vector(19.366, -591.2461, 0), Vector(23.659, -596.0161, 0), Vector(26.1393, -602.8848, 0), Vector(26.1393, -607.5594, 0)], [3, 1, 1, 1, 1, 1, 3], [0, 1, 2, 3, 4, 5, 6], False, 2, [1, 1, 1, 1, 1, 1, 1, 1], False), False)
sketch4.addGeometry(Part.BSplineCurve([Vector(-26.187, -602.8848, 0), Vector(-26.187, -599.4027, 0), Vector(-24.5653, -594.1558, 0), Vector(-21.5602, -590.3398, 0), Vector(-17.2672, -587.9071, 0), Vector(-11.8772, -586.4285, 0), Vector(-5.5331, -585.9038, 0), Vector(-2.0034, -585.9038, 0)], [3, 1, 1, 1, 1, 1, 3], [0, 1, 2, 3, 4, 5, 6], False, 2, [1, 1, 1, 1, 1, 1, 1, 1], False), False)
sketch4.addGeometry(Part.BSplineCurve([Vector(-9.3491, -610.7075, 0), Vector(-7.3934, -610.7075, 0), Vector(-4.3407, -609.992, 0), Vector(-2.2896, -608.4179, 0), Vector(-1.2402, -605.8422, 0), Vector(-1.2402, -604.0296, 0)], [3, 1, 1, 1, 3], [0, 1, 2, 3, 4], False, 2, [1, 1, 1, 1, 1, 1], False), False)
sketch4.addGeometry(Part.BSplineCurve([Vector(-18.2689, -603.4572, 0), Vector(-18.2689, -605.2698, 0), Vector(-16.9333, -607.9886, 0), Vector(-14.5007, -609.7535, 0), Vector(-11.2571, -610.7075, 0), Vector(-9.3491, -610.7075, 0)], [3, 1, 1, 1, 3], [0, 1, 2, 3, 4], False, 2, [1, 1, 1, 1, 1, 1], False), False)
sketch4.addGeometry(Part.BSplineCurve([Vector(-3.8637, -596.0638, 0), Vector(-8.0135, -596.0638, 0), Vector(-13.6421, -597.0178, 0), Vector(-16.8856, -598.8303, 0), Vector(-18.2689, -601.6446, 0), Vector(-18.2689, -603.4572, 0)], [3, 1, 1, 1, 3], [0, 1, 2, 3, 4], False, 2, [1, 1, 1, 1, 1, 1], False), False)
sketch4.addGeometry(Part.BSplineCurve([Vector(-1.2402, -604.0296, 0), Vector(-1.2402, -602.9325, 0), Vector(-1.6218, -600.786, 0), Vector(-2.3373, -598.7826, 0), Vector(-3.2913, -596.8747, 0), Vector(-3.8637, -596.0638, 0)], [3, 1, 1, 1, 3], [0, 1, 2, 3, 4], False, 2, [1, 1, 1, 1, 1, 1], False), False)
sketch4.addGeometry(Part.BSplineCurve([Vector(-21.3694, -660.0765, 0), Vector(-22.4665, -660.0765, 0), Vector(-23.9929, -659.838, 0), Vector(-24.8992, -659.4087, 0), Vector(-25.2807, -658.884, 0), Vector(-25.2807, -658.5025, 0)], [3, 1, 1, 1, 3], [0, 1, 2, 3, 4], False, 2, [1, 1, 1, 1, 1, 1], False), False)
sketch4.addGeometry(Part.BSplineCurve([Vector(-17.3626, -658.5025, 0), Vector(-17.3626, -658.884, 0), Vector(-17.7919, -659.4564, 0), Vector(-18.7459, -659.8857, 0), Vector(-20.2723, -660.0765, 0), Vector(-21.3694, -660.0765, 0)], [3, 1, 1, 1, 3], [0, 1, 2, 3, 4], False, 2, [1, 1, 1, 1, 1, 1], False), False)
sketch4.addGeometry(Part.LineSegment(Vector(-17.3626, -658.5025, 0), Vector(-17.3626, -650.2504, 0)), False)
sketch4.addGeometry(Part.LineSegment(Vector(-17.3626, -650.2504, 0), Vector(24.4699, -650.2504, 0)), False)
sketch4.addGeometry(Part.BSplineCurve([Vector(25.6623, -645.6713, 0), Vector(25.6623, -647.15, 0), Vector(25.5669, -649.0102, 0), Vector(25.2808, -649.9165, 0), Vector(24.8038, -650.2504, 0), Vector(24.4699, -650.2504, 0)], [3, 1, 1, 1, 3], [0, 1, 2, 3, 4], False, 2, [1, 1, 1, 1, 1, 1], False), False)
sketch4.addGeometry(Part.BSplineCurve([Vector(25.1377, -641.1875, 0), Vector(25.3285, -641.426, 0), Vector(25.5192, -641.9984, 0), Vector(25.6146, -642.9524, 0), Vector(25.6623, -644.4788, 0), Vector(25.6623, -645.6713, 0)], [3, 1, 1, 1, 3], [0, 1, 2, 3, 4], False, 2, [1, 1, 1, 1, 1, 1], False), False)
sketch4.addGeometry(Part.LineSegment(Vector(25.1377, -641.1875, 0), Vector(18.1258, -630.3597, 0)), False)
sketch4.addGeometry(Part.BSplineCurve([Vector(14.2622, -628.9287, 0), Vector(15.2162, -628.9287, 0), Vector(16.4086, -629.0241, 0), Vector(17.2672, -629.3103, 0), Vector(17.8396, -629.8827, 0), Vector(18.1258, -630.3597, 0)], [3, 1, 1, 1, 3], [0, 1, 2, 3, 4], False, 2, [1, 1, 1, 1, 1, 1], False), False)
sketch4.addGeometry(Part.BSplineCurve([Vector(11.114, -631.8384, 0), Vector(10.6847, -630.9798, 0), Vector(10.4939, -629.835, 0), Vector(11.1617, -629.1672, 0), Vector(12.7835, -628.9287, 0), Vector(14.2622, -628.9287, 0)], [3, 1, 1, 1, 3], [0, 1, 2, 3, 4], False, 2, [1, 1, 1, 1, 1, 1], False), False)
sketch4.addGeometry(Part.LineSegment(Vector(11.114, -631.8384, 0), Vector(15.5977, -639.995, 0)), False)
sketch4.addGeometry(Part.LineSegment(Vector(15.5977, -639.995, 0), Vector(-17.3626, -639.995, 0)), False)
sketch4.addGeometry(Part.LineSegment(Vector(-17.3626, -639.995, 0), Vector(-17.3626, -630.5982, 0)), False)
sketch4.addGeometry(Part.BSplineCurve([Vector(-21.3694, -629.0718, 0), Vector(-20.2723, -629.0718, 0), Vector(-18.7459, -629.2626, 0), Vector(-17.7919, -629.6919, 0), Vector(-17.3626, -630.2643, 0), Vector(-17.3626, -630.5982, 0)], [3, 1, 1, 1, 3], [0, 1, 2, 3, 4], False, 2, [1, 1, 1, 1, 1, 1], False), False)
sketch4.addGeometry(Part.BSplineCurve([Vector(-25.2807, -630.5982, 0), Vector(-25.2807, -630.2643, 0), Vector(-24.8992, -629.7396, 0), Vector(-23.9929, -629.3103, 0), Vector(-22.4665, -629.0718, 0), Vector(-21.3694, -629.0718, 0)], [3, 1, 1, 1, 3], [0, 1, 2, 3, 4], False, 2, [1, 1, 1, 1, 1, 1], False), False)
sketch4.addGeometry(Part.LineSegment(Vector(-25.2807, -630.5982, 0), Vector(-25.2807, -658.5025, 0)), False)
sketch4.addConstraint(Sketcher.Constraint("Block", 0))
sketch4.addConstraint(Sketcher.Constraint("Block", 1))
sketch4.addConstraint(Sketcher.Constraint("Block", 3))
sketch4.addConstraint(Sketcher.Constraint("Block", 4))
sketch4.addConstraint(Sketcher.Constraint("Block", 5))
sketch4.addConstraint(Sketcher.Constraint("Block", 6))
sketch4.addConstraint(Sketcher.Constraint("Block", 7))
sketch4.addConstraint(Sketcher.Constraint("Block", 8))
sketch4.addConstraint(Sketcher.Constraint("Block", 9))
sketch4.addConstraint(Sketcher.Constraint("Block", 11))
sketch4.addConstraint(Sketcher.Constraint("Block", 12))
sketch4.addConstraint(Sketcher.Constraint("Block", 14))
sketch4.addConstraint(Sketcher.Constraint("Block", 15))
sketch4.addConstraint(Sketcher.Constraint("Block", 16))
sketch4.addConstraint(Sketcher.Constraint("Block", 17))
sketch4.addConstraint(Sketcher.Constraint("Block", 18))
sketch4.addConstraint(Sketcher.Constraint("Block", 19))
sketch4.addConstraint(Sketcher.Constraint("Block", 20))
sketch4.addConstraint(Sketcher.Constraint("Block", 21))
sketch4.addConstraint(Sketcher.Constraint("Block", 22))
sketch4.addConstraint(Sketcher.Constraint("Block", 23))
sketch4.addConstraint(Sketcher.Constraint("Block", 24))
sketch4.addConstraint(Sketcher.Constraint("Block", 25))
sketch4.addConstraint(Sketcher.Constraint("Block", 26))
sketch4.addConstraint(Sketcher.Constraint("Block", 27))
sketch4.addConstraint(Sketcher.Constraint("Block", 28))
sketch4.addConstraint(Sketcher.Constraint("Block", 29))
sketch4.addConstraint(Sketcher.Constraint("Block", 30))
sketch4.addConstraint(Sketcher.Constraint("Block", 31))
sketch4.addConstraint(Sketcher.Constraint("Block", 32))
sketch4.addConstraint(Sketcher.Constraint("Block", 33))
sketch4.addConstraint(Sketcher.Constraint("Block", 34))
sketch4.addConstraint(Sketcher.Constraint("Block", 35))
sketch4.addConstraint(Sketcher.Constraint("Block", 36))
sketch4.addConstraint(Sketcher.Constraint("Block", 37))
sketch4.addConstraint(Sketcher.Constraint("Block", 38))
sketch4.addConstraint(Sketcher.Constraint("Block", 39))
sketch4.addConstraint(Sketcher.Constraint("Block", 40))
sketch4.addConstraint(Sketcher.Constraint("Block", 41))
sketch4.addConstraint(Sketcher.Constraint("Block", 44))
sketch4.addConstraint(Sketcher.Constraint("Block", 45))
sketch4.addConstraint(Sketcher.Constraint("Block", 47))
sketch4.addConstraint(Sketcher.Constraint("Block", 48))
sketch4.addConstraint(Sketcher.Constraint("Block", 52))
sketch4.addConstraint(Sketcher.Constraint("Block", 53))
sketch4.addConstraint(Sketcher.Constraint("Coincident", 1, 1, 2, 1))
sketch4.addConstraint(Sketcher.Constraint("Coincident", 2, 2, 3, 2))
sketch4.addConstraint(Sketcher.Constraint("Coincident", 9, 1, 10, 1))
sketch4.addConstraint(Sketcher.Constraint("Coincident", 10, 2, 11, 2))
sketch4.addConstraint(Sketcher.Constraint("Coincident", 12, 1, 13, 1))
sketch4.addConstraint(Sketcher.Constraint("Coincident", 13, 2, 14, 2))
sketch4.addConstraint(Sketcher.Constraint("Coincident", 41, 1, 42, 1))
sketch4.addConstraint(Sketcher.Constraint("Coincident", 42, 2, 43, 1))
sketch4.addConstraint(Sketcher.Constraint("Coincident", 43, 2, 44, 2))
sketch4.addConstraint(Sketcher.Constraint("Coincident", 45, 1, 46, 1))
sketch4.addConstraint(Sketcher.Constraint("Coincident", 46, 2, 47, 2))
sketch4.addConstraint(Sketcher.Constraint("Coincident", 48, 1, 49, 1))
sketch4.addConstraint(Sketcher.Constraint("Coincident", 49, 2, 50, 1))
sketch4.addConstraint(Sketcher.Constraint("Coincident", 50, 2, 51, 1))
sketch4.addConstraint(Sketcher.Constraint("Coincident", 51, 2, 52, 2))
sketch4.addConstraint(Sketcher.Constraint("Coincident", 53, 1, 54, 1))
sketch4.addConstraint(Sketcher.Constraint("Coincident", 54, 2, 40, 2))
sketch4.addConstraint(Sketcher.Constraint("Vertical", 42))
sketch4.addConstraint(Sketcher.Constraint("Horizontal", 43))
sketch4.addConstraint(Sketcher.Constraint("Horizontal", 50))
sketch4.addConstraint(Sketcher.Constraint("Vertical", 51))
sketch4.addConstraint(Sketcher.Constraint("DistanceX", 50, 2, 50, 1, Q("32.9603 mm")))
sketch4.addConstraint(Sketcher.Constraint("DistanceY", 51, 1, 51, 2, Q("9.3968 mm")))
pad4 = body.newObject("PartDesign::Pad", "Pad003")
pad4.Profile = sketch4
pad4.Length = Q("0.0625 in")

doc.recompute()
